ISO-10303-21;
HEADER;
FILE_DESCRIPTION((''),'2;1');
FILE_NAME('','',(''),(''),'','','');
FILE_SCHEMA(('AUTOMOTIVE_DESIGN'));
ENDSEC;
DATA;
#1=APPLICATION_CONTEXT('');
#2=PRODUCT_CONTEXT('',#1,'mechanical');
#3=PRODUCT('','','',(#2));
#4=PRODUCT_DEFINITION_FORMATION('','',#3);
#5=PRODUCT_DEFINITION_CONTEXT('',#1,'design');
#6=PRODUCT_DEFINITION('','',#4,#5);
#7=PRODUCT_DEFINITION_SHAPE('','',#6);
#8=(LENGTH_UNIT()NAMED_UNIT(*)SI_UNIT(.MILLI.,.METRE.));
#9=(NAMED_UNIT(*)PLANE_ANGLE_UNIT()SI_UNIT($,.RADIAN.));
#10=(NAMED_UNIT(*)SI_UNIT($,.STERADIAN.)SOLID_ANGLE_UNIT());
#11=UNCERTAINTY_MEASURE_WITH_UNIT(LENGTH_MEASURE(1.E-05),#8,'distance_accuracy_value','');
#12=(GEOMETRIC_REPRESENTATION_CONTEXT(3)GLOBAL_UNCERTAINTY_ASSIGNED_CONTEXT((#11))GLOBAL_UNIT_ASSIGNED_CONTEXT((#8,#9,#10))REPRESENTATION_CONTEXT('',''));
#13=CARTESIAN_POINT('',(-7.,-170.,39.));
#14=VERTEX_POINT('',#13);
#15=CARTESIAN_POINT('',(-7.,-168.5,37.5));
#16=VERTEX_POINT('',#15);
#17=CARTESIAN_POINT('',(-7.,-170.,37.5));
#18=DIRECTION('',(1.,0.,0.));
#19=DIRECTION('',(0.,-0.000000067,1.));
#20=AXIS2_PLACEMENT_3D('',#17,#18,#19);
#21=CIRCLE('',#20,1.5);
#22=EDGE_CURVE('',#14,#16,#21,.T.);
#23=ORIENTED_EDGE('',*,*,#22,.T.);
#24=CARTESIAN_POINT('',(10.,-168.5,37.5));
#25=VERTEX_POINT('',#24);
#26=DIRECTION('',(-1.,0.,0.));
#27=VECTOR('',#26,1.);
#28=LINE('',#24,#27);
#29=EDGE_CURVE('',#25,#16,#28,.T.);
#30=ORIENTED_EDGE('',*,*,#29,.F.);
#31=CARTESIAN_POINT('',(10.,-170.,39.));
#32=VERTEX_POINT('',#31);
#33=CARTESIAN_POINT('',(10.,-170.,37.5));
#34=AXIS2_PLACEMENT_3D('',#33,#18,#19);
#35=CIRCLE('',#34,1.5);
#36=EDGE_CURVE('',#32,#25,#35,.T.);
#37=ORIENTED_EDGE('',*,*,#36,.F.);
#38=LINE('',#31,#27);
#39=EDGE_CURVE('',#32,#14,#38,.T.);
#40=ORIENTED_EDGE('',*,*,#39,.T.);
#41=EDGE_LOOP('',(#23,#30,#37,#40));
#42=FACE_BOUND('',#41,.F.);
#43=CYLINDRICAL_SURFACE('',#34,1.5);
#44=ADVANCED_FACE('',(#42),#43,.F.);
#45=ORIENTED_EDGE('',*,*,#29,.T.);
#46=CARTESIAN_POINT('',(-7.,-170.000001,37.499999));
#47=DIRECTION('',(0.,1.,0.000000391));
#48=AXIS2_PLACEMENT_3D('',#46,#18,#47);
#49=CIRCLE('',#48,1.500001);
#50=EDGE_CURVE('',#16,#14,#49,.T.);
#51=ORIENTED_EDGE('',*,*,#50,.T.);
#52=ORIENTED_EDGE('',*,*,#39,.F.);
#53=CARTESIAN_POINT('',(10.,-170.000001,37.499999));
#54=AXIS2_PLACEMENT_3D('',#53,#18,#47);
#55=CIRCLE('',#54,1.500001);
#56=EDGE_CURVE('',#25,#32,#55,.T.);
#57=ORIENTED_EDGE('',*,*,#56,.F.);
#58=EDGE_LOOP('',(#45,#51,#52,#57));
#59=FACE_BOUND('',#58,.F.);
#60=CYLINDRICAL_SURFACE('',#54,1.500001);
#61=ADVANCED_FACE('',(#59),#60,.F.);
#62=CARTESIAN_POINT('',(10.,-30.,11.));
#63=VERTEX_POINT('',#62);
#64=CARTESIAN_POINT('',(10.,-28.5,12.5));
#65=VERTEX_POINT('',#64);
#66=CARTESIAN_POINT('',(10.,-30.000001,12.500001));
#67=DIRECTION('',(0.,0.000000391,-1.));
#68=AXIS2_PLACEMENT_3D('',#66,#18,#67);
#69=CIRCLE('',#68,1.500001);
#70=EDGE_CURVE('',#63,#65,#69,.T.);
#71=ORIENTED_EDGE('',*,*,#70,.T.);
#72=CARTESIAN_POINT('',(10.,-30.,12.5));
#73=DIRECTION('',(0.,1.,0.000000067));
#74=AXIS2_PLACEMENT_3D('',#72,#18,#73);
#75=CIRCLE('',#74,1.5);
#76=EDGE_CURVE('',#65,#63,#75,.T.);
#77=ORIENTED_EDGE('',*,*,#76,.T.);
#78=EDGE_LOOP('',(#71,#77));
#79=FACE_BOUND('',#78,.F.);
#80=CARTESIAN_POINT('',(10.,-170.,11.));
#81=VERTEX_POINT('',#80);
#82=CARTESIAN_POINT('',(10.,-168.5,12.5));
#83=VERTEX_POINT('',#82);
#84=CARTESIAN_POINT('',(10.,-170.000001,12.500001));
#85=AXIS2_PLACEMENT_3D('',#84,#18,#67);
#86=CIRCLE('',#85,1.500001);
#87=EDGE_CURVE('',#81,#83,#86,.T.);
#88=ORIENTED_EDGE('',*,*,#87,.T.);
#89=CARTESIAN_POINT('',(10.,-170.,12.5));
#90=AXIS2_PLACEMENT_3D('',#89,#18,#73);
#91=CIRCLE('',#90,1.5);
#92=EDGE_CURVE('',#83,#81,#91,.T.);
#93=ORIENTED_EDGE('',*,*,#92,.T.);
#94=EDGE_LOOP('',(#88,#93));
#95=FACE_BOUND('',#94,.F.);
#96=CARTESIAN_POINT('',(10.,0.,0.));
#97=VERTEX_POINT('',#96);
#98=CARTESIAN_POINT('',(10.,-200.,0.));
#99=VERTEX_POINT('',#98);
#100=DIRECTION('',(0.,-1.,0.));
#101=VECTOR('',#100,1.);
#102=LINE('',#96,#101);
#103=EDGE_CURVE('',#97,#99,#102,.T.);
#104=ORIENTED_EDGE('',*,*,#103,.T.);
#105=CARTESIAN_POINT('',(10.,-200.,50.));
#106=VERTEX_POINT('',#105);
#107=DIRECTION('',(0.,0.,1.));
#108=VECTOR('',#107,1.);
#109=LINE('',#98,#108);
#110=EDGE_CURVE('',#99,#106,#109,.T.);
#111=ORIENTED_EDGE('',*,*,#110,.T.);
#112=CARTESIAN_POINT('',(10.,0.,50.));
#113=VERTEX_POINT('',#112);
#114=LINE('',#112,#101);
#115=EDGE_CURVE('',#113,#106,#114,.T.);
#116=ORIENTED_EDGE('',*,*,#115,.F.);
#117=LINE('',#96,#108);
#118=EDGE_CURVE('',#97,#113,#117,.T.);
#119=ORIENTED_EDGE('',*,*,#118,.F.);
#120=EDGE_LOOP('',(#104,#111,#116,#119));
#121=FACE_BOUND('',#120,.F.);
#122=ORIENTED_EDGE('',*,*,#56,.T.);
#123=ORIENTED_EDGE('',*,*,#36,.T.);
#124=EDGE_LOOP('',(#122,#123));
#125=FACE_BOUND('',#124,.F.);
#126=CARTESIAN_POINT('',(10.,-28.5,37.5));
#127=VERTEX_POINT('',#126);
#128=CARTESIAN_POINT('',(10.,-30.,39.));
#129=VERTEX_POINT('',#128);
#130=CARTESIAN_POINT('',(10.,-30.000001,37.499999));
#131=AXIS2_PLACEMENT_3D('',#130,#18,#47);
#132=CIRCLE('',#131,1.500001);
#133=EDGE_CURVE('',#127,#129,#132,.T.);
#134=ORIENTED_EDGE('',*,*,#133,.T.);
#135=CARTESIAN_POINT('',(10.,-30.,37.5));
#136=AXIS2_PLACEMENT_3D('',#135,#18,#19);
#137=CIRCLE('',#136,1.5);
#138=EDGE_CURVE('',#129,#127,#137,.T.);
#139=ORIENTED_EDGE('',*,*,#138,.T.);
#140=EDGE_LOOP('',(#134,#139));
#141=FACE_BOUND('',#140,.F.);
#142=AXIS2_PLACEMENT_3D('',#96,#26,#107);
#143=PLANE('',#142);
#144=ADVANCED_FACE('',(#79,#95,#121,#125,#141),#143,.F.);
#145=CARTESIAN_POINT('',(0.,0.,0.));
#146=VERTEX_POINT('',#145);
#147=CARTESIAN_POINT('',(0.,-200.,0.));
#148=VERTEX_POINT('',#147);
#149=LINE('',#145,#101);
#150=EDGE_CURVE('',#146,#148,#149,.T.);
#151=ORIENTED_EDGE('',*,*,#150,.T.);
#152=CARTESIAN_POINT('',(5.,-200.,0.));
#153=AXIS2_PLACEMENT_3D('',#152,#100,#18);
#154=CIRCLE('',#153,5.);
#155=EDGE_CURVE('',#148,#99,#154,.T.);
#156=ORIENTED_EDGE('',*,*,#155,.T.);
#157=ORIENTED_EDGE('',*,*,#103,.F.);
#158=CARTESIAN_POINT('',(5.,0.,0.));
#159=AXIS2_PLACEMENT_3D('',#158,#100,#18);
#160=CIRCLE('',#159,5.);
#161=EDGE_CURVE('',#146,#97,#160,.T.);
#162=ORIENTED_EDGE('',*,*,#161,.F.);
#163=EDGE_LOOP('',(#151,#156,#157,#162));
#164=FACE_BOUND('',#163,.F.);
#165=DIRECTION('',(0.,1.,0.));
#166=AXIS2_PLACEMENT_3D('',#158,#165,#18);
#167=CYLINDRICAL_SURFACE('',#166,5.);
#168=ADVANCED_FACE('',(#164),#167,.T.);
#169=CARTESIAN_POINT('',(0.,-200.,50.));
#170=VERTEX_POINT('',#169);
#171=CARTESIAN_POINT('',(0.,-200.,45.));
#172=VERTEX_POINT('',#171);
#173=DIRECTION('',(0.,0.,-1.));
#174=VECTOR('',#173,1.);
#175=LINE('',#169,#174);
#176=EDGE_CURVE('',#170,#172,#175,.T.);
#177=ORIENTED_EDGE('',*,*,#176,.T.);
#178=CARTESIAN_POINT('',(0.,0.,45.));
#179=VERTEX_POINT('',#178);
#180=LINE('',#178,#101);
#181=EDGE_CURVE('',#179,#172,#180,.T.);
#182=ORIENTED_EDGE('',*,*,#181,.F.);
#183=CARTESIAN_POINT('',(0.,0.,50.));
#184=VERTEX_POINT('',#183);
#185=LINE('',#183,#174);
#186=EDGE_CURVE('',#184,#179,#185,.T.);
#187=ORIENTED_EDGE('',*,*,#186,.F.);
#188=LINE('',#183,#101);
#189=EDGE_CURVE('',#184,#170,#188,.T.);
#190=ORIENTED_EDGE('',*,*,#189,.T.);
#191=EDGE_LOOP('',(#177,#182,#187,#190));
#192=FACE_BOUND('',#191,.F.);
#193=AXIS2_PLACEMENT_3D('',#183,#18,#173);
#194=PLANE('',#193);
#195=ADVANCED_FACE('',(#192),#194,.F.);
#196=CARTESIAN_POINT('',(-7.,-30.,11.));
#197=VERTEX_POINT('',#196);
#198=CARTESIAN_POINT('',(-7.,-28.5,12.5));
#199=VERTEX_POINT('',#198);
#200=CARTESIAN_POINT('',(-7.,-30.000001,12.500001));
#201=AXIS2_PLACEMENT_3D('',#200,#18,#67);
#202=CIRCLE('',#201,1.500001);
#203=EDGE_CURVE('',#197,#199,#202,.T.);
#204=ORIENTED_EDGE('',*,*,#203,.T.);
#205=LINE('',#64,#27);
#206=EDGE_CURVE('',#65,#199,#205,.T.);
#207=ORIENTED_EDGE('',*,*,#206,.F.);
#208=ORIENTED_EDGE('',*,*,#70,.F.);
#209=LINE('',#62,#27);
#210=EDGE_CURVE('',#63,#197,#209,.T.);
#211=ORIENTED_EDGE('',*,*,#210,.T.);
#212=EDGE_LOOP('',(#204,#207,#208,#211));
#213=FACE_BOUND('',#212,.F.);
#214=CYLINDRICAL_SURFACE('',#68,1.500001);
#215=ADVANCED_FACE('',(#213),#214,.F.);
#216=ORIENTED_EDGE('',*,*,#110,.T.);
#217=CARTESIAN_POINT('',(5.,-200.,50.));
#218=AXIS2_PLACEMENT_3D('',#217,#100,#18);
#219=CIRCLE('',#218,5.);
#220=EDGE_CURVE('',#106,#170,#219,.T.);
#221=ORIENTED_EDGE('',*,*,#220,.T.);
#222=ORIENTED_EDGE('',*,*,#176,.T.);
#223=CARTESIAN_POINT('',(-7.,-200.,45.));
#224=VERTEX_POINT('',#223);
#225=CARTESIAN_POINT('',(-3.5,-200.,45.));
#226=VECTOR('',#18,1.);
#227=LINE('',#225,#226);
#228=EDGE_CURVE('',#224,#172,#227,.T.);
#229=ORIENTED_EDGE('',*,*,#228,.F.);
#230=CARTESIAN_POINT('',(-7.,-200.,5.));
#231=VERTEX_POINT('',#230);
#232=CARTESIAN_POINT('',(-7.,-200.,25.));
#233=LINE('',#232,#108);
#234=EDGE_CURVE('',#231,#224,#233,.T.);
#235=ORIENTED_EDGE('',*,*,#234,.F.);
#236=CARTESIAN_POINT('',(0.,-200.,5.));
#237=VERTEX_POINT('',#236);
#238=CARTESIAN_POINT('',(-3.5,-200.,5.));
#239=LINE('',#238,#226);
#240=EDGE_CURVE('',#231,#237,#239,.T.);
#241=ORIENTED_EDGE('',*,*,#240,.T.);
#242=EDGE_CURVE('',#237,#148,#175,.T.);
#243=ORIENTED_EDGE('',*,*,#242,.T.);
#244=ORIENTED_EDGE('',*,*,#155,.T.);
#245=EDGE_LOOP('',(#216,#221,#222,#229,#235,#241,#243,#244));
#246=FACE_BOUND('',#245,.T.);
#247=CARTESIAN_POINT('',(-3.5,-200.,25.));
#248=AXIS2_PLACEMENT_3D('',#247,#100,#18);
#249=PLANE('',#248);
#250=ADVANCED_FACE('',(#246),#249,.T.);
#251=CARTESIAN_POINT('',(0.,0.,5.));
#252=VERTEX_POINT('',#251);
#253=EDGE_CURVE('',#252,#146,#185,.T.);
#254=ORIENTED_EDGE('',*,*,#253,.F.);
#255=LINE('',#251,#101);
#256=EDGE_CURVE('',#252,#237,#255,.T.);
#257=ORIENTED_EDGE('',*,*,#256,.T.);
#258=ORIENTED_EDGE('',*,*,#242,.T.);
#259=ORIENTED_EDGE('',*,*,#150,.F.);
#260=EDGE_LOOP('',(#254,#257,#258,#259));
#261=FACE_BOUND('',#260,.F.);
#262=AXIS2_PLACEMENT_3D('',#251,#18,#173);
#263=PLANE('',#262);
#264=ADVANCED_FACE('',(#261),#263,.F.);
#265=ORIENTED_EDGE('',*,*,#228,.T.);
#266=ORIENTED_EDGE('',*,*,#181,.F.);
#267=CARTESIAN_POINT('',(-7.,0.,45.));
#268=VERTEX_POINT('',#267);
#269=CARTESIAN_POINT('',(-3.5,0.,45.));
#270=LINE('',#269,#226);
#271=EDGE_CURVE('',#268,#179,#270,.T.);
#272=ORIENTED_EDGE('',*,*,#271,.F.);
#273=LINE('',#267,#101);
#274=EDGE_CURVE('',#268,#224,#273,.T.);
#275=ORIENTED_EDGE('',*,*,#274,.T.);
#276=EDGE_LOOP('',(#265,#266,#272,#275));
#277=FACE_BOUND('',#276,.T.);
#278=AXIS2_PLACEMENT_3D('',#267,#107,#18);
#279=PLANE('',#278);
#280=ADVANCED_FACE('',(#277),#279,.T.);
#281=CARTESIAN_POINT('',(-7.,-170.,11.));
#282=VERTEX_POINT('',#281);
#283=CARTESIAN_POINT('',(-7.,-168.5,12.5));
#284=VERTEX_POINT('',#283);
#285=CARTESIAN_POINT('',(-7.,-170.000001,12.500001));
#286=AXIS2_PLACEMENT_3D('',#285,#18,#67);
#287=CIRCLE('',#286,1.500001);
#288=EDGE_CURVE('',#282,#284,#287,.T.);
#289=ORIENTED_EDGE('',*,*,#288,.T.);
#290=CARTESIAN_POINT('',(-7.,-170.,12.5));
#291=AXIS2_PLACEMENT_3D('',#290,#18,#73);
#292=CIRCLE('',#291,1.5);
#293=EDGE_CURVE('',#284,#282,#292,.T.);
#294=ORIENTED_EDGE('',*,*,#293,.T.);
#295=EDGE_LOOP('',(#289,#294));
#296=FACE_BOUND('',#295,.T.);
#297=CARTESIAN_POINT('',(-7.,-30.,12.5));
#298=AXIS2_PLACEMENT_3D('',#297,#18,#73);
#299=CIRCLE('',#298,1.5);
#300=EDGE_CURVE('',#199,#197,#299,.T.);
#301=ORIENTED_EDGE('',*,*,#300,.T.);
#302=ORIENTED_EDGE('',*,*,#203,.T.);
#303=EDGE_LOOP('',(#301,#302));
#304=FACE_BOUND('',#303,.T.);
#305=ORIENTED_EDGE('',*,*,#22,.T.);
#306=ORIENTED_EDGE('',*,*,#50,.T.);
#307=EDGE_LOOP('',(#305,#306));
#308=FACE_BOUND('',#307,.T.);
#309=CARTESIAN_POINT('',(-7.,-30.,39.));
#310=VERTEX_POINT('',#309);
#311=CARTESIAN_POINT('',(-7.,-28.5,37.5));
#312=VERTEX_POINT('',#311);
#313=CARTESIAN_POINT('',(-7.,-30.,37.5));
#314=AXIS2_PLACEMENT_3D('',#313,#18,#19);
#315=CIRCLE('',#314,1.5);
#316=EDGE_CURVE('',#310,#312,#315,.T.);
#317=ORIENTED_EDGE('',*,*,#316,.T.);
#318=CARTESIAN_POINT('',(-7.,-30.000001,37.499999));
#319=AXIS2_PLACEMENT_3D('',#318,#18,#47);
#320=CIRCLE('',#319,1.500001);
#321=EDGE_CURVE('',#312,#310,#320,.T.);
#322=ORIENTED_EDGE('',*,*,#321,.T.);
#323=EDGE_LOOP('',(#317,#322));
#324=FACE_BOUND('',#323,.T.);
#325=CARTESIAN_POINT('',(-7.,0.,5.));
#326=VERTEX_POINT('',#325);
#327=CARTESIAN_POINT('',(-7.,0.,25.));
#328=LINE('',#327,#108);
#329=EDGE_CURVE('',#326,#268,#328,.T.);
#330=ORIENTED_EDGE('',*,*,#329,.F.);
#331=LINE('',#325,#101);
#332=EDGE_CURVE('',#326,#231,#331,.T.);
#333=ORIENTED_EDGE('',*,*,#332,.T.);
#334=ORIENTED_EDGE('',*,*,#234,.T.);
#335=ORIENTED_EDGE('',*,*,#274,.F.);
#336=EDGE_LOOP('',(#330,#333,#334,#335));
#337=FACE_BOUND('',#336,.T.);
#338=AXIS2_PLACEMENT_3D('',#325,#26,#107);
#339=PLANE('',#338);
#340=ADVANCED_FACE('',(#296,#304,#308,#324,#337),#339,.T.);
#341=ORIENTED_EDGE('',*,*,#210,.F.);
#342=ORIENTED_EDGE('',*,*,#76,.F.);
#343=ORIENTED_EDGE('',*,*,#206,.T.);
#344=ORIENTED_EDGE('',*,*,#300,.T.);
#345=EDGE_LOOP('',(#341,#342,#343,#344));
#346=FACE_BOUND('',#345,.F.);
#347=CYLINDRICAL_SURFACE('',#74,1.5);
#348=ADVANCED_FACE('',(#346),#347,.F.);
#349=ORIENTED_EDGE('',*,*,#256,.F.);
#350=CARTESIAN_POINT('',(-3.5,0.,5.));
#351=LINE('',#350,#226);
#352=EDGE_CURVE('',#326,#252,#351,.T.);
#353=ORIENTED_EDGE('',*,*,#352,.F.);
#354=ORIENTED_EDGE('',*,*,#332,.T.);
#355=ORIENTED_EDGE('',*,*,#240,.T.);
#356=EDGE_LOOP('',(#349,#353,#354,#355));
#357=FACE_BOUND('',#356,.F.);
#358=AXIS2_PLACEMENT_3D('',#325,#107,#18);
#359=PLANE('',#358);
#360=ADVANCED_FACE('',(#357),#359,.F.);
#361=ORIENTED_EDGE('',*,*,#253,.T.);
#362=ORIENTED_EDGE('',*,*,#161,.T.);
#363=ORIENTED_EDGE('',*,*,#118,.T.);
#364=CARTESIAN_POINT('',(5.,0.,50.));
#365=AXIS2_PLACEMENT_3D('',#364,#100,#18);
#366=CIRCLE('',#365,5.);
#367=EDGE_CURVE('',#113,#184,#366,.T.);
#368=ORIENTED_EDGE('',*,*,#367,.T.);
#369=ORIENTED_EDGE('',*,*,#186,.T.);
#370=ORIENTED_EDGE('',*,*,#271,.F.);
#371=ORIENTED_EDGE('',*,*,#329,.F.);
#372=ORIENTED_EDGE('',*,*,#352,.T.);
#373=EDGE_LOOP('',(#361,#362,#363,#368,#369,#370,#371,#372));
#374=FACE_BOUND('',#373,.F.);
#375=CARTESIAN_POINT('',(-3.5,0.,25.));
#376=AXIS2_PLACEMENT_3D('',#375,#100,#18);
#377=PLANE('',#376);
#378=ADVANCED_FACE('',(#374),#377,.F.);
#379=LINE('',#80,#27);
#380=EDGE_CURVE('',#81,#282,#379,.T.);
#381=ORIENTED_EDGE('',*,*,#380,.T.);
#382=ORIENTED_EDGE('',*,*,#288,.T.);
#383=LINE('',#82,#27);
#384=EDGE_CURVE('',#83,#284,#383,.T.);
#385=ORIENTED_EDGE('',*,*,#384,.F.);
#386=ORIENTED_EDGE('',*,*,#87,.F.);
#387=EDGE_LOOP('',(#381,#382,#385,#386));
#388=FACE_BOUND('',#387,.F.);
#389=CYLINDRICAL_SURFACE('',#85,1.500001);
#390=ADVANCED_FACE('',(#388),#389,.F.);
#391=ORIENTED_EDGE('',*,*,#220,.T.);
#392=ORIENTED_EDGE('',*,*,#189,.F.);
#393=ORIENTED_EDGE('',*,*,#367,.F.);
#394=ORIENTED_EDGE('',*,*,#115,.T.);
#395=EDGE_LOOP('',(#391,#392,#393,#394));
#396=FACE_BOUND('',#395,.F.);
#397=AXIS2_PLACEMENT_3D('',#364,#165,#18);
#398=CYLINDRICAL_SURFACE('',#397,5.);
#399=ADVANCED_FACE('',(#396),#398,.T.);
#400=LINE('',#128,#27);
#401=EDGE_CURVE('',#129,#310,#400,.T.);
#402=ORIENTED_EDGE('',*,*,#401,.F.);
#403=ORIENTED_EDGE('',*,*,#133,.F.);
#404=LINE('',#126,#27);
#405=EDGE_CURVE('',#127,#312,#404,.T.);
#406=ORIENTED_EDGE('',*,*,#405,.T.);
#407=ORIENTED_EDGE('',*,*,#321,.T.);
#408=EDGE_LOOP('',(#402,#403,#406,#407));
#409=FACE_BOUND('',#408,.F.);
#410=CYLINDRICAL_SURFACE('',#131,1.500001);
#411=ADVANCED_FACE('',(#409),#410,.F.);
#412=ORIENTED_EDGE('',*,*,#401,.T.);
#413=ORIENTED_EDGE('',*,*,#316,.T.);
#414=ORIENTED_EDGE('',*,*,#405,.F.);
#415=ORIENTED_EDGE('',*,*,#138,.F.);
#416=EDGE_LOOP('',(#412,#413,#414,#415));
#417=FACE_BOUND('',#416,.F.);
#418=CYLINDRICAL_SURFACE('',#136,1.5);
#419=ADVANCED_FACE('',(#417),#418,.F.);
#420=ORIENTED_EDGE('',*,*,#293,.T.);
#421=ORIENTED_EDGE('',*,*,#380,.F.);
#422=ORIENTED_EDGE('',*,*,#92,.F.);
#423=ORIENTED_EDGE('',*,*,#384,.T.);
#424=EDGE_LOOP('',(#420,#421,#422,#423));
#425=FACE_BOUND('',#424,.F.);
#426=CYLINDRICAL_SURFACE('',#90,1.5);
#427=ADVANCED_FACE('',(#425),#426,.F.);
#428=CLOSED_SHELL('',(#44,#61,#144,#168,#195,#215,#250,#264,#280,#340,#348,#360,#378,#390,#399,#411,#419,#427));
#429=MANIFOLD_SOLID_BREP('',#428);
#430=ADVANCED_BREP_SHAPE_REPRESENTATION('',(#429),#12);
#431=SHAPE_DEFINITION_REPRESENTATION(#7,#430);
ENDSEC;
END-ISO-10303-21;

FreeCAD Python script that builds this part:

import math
import FreeCAD as App
import Part
import Sketcher
from FreeCAD import Vector

doc = App.newDocument("Part")
body = doc.addObject("PartDesign::Body", "Body")

sketch1 = doc.addObject("Sketcher::SketchObject", "Sketch")
body.addObject(sketch1)
sketch1.AttachmentSupport = (doc.XZ_Plane, [""])
sketch1.MapMode = "FlatFace"
sketch1.addGeometry([
    Part.LineSegment(Vector(-7, 45, 0), Vector(-7, 5, 0)),
    Part.LineSegment(Vector(-7, 5, 0), Vector(0, 5, 0)),
    Part.LineSegment(Vector(0, 5, 0), Vector(0, 0, 0)),
    Part.ArcOfCircle(Part.Circle(Vector(5, 0, 0), Vector(0, 0, 1), 5), math.radians(180), math.radians(360)),
    Part.LineSegment(Vector(10, 0, 0), Vector(10, 50, 0)),
    Part.ArcOfCircle(Part.Circle(Vector(5, 50, 0), Vector(0, 0, 1), 5), math.radians(0), math.radians(180)),
    Part.LineSegment(Vector(0, 50, 0), Vector(0, 45, 0)),
    Part.LineSegment(Vector(0, 45, 0), Vector(-7, 45, 0)),
], False)
sketch1.addConstraint([
    Sketcher.Constraint("Coincident", 0, 2, 1, 1),
    Sketcher.Constraint("Coincident", 1, 2, 2, 1),
    Sketcher.Constraint("Tangent", 2, 2, 3, 1),
    Sketcher.Constraint("Tangent", 3, 2, 4, 1),
    Sketcher.Constraint("Tangent", 4, 2, 5, 1),
    Sketcher.Constraint("Tangent", 5, 2, 6, 1),
    Sketcher.Constraint("Coincident", 6, 2, 7, 1),
    Sketcher.Constraint("Coincident", 7, 2, 0, 1),
    Sketcher.Constraint("Vertical", 0),
    Sketcher.Constraint("Horizontal", 1),
    Sketcher.Constraint("Vertical", 2),
    Sketcher.Constraint("Vertical", 4),
    Sketcher.Constraint("Vertical", 6),
    Sketcher.Constraint("Horizontal", 7),
    Sketcher.Constraint("Coincident", 2, 2, -1, 1),
    Sketcher.Constraint("Equal", 3, 5),
    Sketcher.Constraint("Equal", 2, 6),
    Sketcher.Constraint("Radius", 3, 5.0),
    Sketcher.Constraint("DistanceX", 1, 1, 1, 2, 7.0),
    Sketcher.Constraint("DistanceY", 0, 2, 0, 1, 40.0),
    Sketcher.Constraint("DistanceY", 2, 2, 2, 1, 5.0),
])
pad1 = doc.addObject("PartDesign::Pad", "Pad")
body.addObject(pad1)
pad1.Profile = sketch1
pad1.Length = 200

sketch2 = doc.addObject("Sketcher::SketchObject", "Sketch001")
body.addObject(sketch2)
sketch2.AttachmentSupport = (doc.YZ_Plane, [""])
sketch2.MapMode = "FlatFace"
sketch2.AttachmentOffset = App.Placement(Vector(0, 0, 10), App.Rotation())
sketch2.addGeometry([
    Part.ArcOfCircle(Part.Circle(Vector(-170, 37.5, 0), Vector(0, 0, 1), 1.5), math.radians(0), math.radians(90)),
    Part.ArcOfCircle(Part.Circle(Vector(-170, 37.5, 0), Vector(0, 0, 1), 1.5), math.radians(90), math.radians(360)),
    Part.ArcOfCircle(Part.Circle(Vector(-170, 12.5, 0), Vector(0, 0, 1), 1.5), math.radians(0), math.radians(270)),
    Part.ArcOfCircle(Part.Circle(Vector(-170, 12.5, 0), Vector(0, 0, 1), 1.5), math.radians(-90), math.radians(0)),
    Part.ArcOfCircle(Part.Circle(Vector(-30, 12.5, 0), Vector(0, 0, 1), 1.5), math.radians(0), math.radians(270)),
    Part.ArcOfCircle(Part.Circle(Vector(-30, 12.5, 0), Vector(0, 0, 1), 1.5), math.radians(-90), math.radians(0)),
    Part.ArcOfCircle(Part.Circle(Vector(-30, 37.5, 0), Vector(0, 0, 1), 1.5), math.radians(0), math.radians(90)),
    Part.ArcOfCircle(Part.Circle(Vector(-30, 37.5, 0), Vector(0, 0, 1), 1.5), math.radians(90), math.radians(360)),
], False)
sketch2.addConstraint([
    Sketcher.Constraint("Tangent", 0, 1, 1, 2),
    Sketcher.Constraint("Coincident", 1, 1, 0, 2),
    Sketcher.Constraint("Tangent", 2, 1, 3, 2),
    Sketcher.Constraint("Coincident", 3, 1, 2, 2),
    Sketcher.Constraint("Tangent", 4, 1, 5, 2),
    Sketcher.Constraint("Coincident", 5, 1, 4, 2),
    Sketcher.Constraint("Tangent", 6, 1, 7, 2),
    Sketcher.Constraint("Coincident", 7, 1, 6, 2),
    Sketcher.Constraint("Equal", 1, 2),
    Sketcher.Constraint("Equal", 3, 4),
    Sketcher.Constraint("Equal", 5, 6),
    Sketcher.Constraint("Horizontal", 3, 3, 4, 3),
    Sketcher.Constraint("Horizontal", 1, 3, 6, 3),
    Sketcher.Constraint("Horizontal", 7, 3, 0, 1),
    Sketcher.Constraint("Horizontal", 5, 3, 2, 1),
    Sketcher.Constraint("Horizontal", 2, 1, 4, 1),
    Sketcher.Constraint("Horizontal", 0, 1, 6, 1),
    Sketcher.Constraint("Vertical", 1, 3, 2, 3),
    Sketcher.Constraint("Vertical", 5, 3, 6, 3),
    Sketcher.Constraint("Vertical", 3, 3, 1, 1),
    Sketcher.Constraint("Vertical", 1, 1, 3, 1),
    Sketcher.Constraint("Vertical", 7, 3, 5, 1),
    Sketcher.Constraint("Vertical", 5, 1, 7, 1),
    Sketcher.Constraint("Radius", 0, 1.500001),
    Sketcher.Constraint("DistanceX", 0, 3, -1, 1, 170.000001),
    Sketcher.Constraint("DistanceX", 4, 3, -1, 1, 30.0),
    Sketcher.Constraint("DistanceY", -1, 1, 1, 1, 39.0),
    Sketcher.Constraint("DistanceY", -1, 1, 3, 1, 11.0),
])
pocket1 = doc.addObject("PartDesign::Pocket", "Pocket")
body.addObject(pocket1)
pocket1.Profile = sketch2
pocket1.Length = 25

doc.recompute()
